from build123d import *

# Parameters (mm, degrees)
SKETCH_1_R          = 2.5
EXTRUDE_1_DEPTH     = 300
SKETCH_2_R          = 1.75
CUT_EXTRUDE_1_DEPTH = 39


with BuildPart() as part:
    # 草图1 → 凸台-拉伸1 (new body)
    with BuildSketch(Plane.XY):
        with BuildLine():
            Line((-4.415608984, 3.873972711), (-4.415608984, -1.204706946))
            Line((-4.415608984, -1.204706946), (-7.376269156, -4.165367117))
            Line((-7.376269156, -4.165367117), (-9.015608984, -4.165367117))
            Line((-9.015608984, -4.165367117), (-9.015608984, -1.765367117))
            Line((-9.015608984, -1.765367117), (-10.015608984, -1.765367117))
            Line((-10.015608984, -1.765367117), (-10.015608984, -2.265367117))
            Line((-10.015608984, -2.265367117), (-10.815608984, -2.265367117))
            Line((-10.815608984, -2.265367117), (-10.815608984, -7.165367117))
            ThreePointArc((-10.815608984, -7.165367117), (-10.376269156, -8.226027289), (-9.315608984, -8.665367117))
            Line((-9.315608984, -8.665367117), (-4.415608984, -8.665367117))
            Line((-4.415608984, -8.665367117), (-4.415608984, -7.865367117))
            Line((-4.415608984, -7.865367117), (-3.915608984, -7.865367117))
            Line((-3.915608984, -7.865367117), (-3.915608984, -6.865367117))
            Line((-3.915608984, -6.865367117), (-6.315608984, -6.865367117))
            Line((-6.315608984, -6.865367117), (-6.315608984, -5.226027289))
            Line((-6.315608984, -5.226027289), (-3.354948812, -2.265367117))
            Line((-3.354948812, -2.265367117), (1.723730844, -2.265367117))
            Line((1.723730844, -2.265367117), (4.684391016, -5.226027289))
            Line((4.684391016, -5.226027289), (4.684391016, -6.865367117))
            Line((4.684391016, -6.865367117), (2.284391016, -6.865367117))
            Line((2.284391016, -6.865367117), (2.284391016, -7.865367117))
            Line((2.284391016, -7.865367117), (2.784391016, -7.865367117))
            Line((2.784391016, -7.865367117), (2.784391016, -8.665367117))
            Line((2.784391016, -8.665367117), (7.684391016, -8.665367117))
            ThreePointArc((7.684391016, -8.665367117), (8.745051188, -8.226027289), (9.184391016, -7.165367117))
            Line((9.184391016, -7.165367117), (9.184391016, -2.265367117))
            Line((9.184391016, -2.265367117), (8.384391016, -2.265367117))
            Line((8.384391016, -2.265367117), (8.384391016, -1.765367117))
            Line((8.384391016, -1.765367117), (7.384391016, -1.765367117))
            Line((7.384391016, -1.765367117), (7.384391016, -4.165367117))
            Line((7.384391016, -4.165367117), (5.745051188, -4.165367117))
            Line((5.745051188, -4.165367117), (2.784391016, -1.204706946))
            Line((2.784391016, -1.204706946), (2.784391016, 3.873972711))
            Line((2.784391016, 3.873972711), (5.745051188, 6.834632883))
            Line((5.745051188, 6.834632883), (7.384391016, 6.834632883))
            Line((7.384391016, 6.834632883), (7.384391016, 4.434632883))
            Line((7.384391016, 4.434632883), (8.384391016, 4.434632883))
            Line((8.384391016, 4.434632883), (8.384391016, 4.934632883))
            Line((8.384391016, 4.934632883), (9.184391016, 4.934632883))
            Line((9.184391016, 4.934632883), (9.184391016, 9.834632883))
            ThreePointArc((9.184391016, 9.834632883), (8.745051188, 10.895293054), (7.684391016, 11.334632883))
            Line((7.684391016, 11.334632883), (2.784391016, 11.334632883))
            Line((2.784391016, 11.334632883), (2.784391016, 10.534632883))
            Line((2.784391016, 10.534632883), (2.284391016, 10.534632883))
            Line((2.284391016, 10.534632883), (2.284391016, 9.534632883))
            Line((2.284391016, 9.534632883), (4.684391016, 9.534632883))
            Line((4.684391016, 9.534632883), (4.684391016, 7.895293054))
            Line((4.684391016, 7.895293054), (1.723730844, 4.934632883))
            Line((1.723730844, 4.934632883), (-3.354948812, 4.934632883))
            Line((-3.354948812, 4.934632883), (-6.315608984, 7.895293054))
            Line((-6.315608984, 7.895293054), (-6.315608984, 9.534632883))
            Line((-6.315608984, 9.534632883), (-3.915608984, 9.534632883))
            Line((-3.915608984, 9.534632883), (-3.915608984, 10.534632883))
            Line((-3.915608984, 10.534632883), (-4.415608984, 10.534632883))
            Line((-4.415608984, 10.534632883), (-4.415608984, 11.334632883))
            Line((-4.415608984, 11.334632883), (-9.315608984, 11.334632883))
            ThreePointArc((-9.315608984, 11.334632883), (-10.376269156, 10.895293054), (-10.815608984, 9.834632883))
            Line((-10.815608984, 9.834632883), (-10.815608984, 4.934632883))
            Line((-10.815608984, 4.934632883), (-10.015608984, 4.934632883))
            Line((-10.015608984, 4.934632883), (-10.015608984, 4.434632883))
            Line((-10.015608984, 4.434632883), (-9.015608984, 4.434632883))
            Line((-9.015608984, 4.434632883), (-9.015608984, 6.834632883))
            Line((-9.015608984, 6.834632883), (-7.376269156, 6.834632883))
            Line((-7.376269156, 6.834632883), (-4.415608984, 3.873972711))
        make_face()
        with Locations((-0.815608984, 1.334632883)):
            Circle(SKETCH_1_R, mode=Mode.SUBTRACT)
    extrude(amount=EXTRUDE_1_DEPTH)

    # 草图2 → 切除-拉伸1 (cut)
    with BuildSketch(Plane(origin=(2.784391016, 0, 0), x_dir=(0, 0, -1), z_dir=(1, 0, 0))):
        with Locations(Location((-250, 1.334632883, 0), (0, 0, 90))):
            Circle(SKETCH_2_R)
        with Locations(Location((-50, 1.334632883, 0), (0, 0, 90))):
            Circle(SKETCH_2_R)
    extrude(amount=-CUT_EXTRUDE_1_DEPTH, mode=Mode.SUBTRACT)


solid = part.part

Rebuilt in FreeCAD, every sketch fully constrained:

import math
import FreeCAD as App
import Part
import Sketcher
from FreeCAD import Vector
Q = App.Units.Quantity

doc = App.newDocument("Part")
body = doc.addObject("PartDesign::Body", "Body")

# Sketch on XY plane
sketch1 = body.newObject("Sketcher::SketchObject", "Sketch")
sketch1.AttachmentSupport = (doc.getObject("XY_Plane"), [""])
sketch1.MapMode = "FlatFace"
sketch1.addGeometry([
    Part.LineSegment(Vector(-4.42, 3.87, 0), Vector(-4.42, -1.2, 0)),  # 0
    Part.LineSegment(Vector(-4.42, -1.2, 0), Vector(-7.38, -4.17, 0)),  # 1
    Part.LineSegment(Vector(-7.38, -4.17, 0), Vector(-9.02, -4.17, 0)),  # 2
    Part.LineSegment(Vector(-9.02, -4.17, 0), Vector(-9.02, -1.77, 0)),  # 3
    Part.LineSegment(Vector(-9.02, -1.77, 0), Vector(-10.02, -1.77, 0)),  # 4
    Part.LineSegment(Vector(-10.02, -1.77, 0), Vector(-10.02, -2.27, 0)),  # 5
    Part.LineSegment(Vector(-10.02, -2.27, 0), Vector(-10.82, -2.27, 0)),  # 6
    Part.LineSegment(Vector(-10.82, -2.27, 0), Vector(-10.82, -7.17, 0)),  # 7
    Part.ArcOfCircle(Part.Circle(Vector(-9.32, -7.17, 0), Vector(0, 0, 1), 1.5), math.radians(180), math.radians(270)),  # 8
    Part.LineSegment(Vector(-9.32, -8.67, 0), Vector(-4.42, -8.67, 0)),  # 9
    Part.LineSegment(Vector(-4.42, -8.67, 0), Vector(-4.42, -7.87, 0)),  # 10
    Part.LineSegment(Vector(-4.42, -7.87, 0), Vector(-3.92, -7.87, 0)),  # 11
    Part.LineSegment(Vector(-3.92, -7.87, 0), Vector(-3.92, -6.87, 0)),  # 12
    Part.LineSegment(Vector(-3.92, -6.87, 0), Vector(-6.32, -6.87, 0)),  # 13
    Part.LineSegment(Vector(-6.32, -6.87, 0), Vector(-6.32, -5.23, 0)),  # 14
    Part.LineSegment(Vector(-6.32, -5.23, 0), Vector(-3.35, -2.27, 0)),  # 15
    Part.LineSegment(Vector(-3.35, -2.27, 0), Vector(1.72, -2.27, 0)),  # 16
    Part.LineSegment(Vector(1.72, -2.27, 0), Vector(4.68, -5.23, 0)),  # 17
    Part.LineSegment(Vector(4.68, -5.23, 0), Vector(4.68, -6.87, 0)),  # 18
    Part.LineSegment(Vector(4.68, -6.87, 0), Vector(2.28, -6.87, 0)),  # 19
    Part.LineSegment(Vector(2.28, -6.87, 0), Vector(2.28, -7.87, 0)),  # 20
    Part.LineSegment(Vector(2.28, -7.87, 0), Vector(2.78, -7.87, 0)),  # 21
    Part.LineSegment(Vector(2.78, -7.87, 0), Vector(2.78, -8.67, 0)),  # 22
    Part.LineSegment(Vector(2.78, -8.67, 0), Vector(7.68, -8.67, 0)),  # 23
    Part.ArcOfCircle(Part.Circle(Vector(7.68, -7.17, 0), Vector(0, 0, 1), 1.5), math.radians(-90), math.radians(0)),  # 24
    Part.LineSegment(Vector(9.18, -7.17, 0), Vector(9.18, -2.27, 0)),  # 25
    Part.LineSegment(Vector(9.18, -2.27, 0), Vector(8.38, -2.27, 0)),  # 26
    Part.LineSegment(Vector(8.38, -2.27, 0), Vector(8.38, -1.77, 0)),  # 27
    Part.LineSegment(Vector(8.38, -1.77, 0), Vector(7.38, -1.77, 0)),  # 28
    Part.LineSegment(Vector(7.38, -1.77, 0), Vector(7.38, -4.17, 0)),  # 29
    Part.LineSegment(Vector(7.38, -4.17, 0), Vector(5.75, -4.17, 0)),  # 30
    Part.LineSegment(Vector(5.75, -4.17, 0), Vector(2.78, -1.2, 0)),  # 31
    Part.LineSegment(Vector(2.78, -1.2, 0), Vector(2.78, 3.87, 0)),  # 32
    Part.LineSegment(Vector(2.78, 3.87, 0), Vector(5.75, 6.83, 0)),  # 33
    Part.LineSegment(Vector(5.75, 6.83, 0), Vector(7.38, 6.83, 0)),  # 34
    Part.LineSegment(Vector(7.38, 6.83, 0), Vector(7.38, 4.43, 0)),  # 35
    Part.LineSegment(Vector(7.38, 4.43, 0), Vector(8.38, 4.43, 0)),  # 36
    Part.LineSegment(Vector(8.38, 4.43, 0), Vector(8.38, 4.93, 0)),  # 37
    Part.LineSegment(Vector(8.38, 4.93, 0), Vector(9.18, 4.93, 0)),  # 38
    Part.LineSegment(Vector(9.18, 4.93, 0), Vector(9.18, 9.83, 0)),  # 39
    Part.ArcOfCircle(Part.Circle(Vector(7.68, 9.83, 0), Vector(0, 0, 1), 1.5), math.radians(0), math.radians(90)),  # 40
    Part.LineSegment(Vector(7.68, 11.33, 0), Vector(2.78, 11.33, 0)),  # 41
    Part.LineSegment(Vector(2.78, 11.33, 0), Vector(2.78, 10.53, 0)),  # 42
    Part.LineSegment(Vector(2.78, 10.53, 0), Vector(2.28, 10.53, 0)),  # 43
    Part.LineSegment(Vector(2.28, 10.53, 0), Vector(2.28, 9.53, 0)),  # 44
    Part.LineSegment(Vector(2.28, 9.53, 0), Vector(4.68, 9.53, 0)),  # 45
    Part.LineSegment(Vector(4.68, 9.53, 0), Vector(4.68, 7.9, 0)),  # 46
    Part.LineSegment(Vector(4.68, 7.9, 0), Vector(1.72, 4.93, 0)),  # 47
    Part.LineSegment(Vector(1.72, 4.93, 0), Vector(-3.35, 4.93, 0)),  # 48
    Part.LineSegment(Vector(-3.35, 4.93, 0), Vector(-6.32, 7.9, 0)),  # 49
    Part.LineSegment(Vector(-6.32, 7.9, 0), Vector(-6.32, 9.53, 0)),  # 50
    Part.LineSegment(Vector(-6.32, 9.53, 0), Vector(-3.92, 9.53, 0)),  # 51
    Part.LineSegment(Vector(-3.92, 9.53, 0), Vector(-3.92, 10.53, 0)),  # 52
    Part.LineSegment(Vector(-3.92, 10.53, 0), Vector(-4.42, 10.53, 0)),  # 53
    Part.LineSegment(Vector(-4.42, 10.53, 0), Vector(-4.42, 11.33, 0)),  # 54
    Part.LineSegment(Vector(-4.42, 11.33, 0), Vector(-9.32, 11.33, 0)),  # 55
    Part.ArcOfCircle(Part.Circle(Vector(-9.32, 9.83, 0), Vector(0, 0, 1), 1.5), math.radians(90), math.radians(180)),  # 56
    Part.LineSegment(Vector(-10.82, 9.83, 0), Vector(-10.82, 4.93, 0)),  # 57
    Part.LineSegment(Vector(-10.82, 4.93, 0), Vector(-10.02, 4.93, 0)),  # 58
    Part.LineSegment(Vector(-10.02, 4.93, 0), Vector(-10.02, 4.43, 0)),  # 59
    Part.LineSegment(Vector(-10.02, 4.43, 0), Vector(-9.02, 4.43, 0)),  # 60
    Part.LineSegment(Vector(-9.02, 4.43, 0), Vector(-9.02, 6.83, 0)),  # 61
    Part.LineSegment(Vector(-9.02, 6.83, 0), Vector(-7.38, 6.83, 0)),  # 62
    Part.LineSegment(Vector(-7.38, 6.83, 0), Vector(-4.42, 3.87, 0)),  # 63
    Part.Circle(Vector(-0.82, 1.33, 0), Vector(0, 0, 1), 2.5),  # 64
], False)
sketch1.addConstraint([
    Sketcher.Constraint("Coincident", 0, 2, 1, 1),
    Sketcher.Constraint("Coincident", 1, 2, 2, 1),
    Sketcher.Constraint("Coincident", 2, 2, 3, 1),
    Sketcher.Constraint("Coincident", 3, 2, 4, 1),
    Sketcher.Constraint("Coincident", 4, 2, 5, 1),
    Sketcher.Constraint("Coincident", 5, 2, 6, 1),
    Sketcher.Constraint("Coincident", 6, 2, 7, 1),
    Sketcher.Constraint("Tangent", 7, 2, 8, 1),
    Sketcher.Constraint("Tangent", 8, 2, 9, 1),
    Sketcher.Constraint("Coincident", 9, 2, 10, 1),
    Sketcher.Constraint("Coincident", 10, 2, 11, 1),
    Sketcher.Constraint("Coincident", 11, 2, 12, 1),
    Sketcher.Constraint("Coincident", 12, 2, 13, 1),
    Sketcher.Constraint("Coincident", 13, 2, 14, 1),
    Sketcher.Constraint("Coincident", 14, 2, 15, 1),
    Sketcher.Constraint("Coincident", 15, 2, 16, 1),
    Sketcher.Constraint("Coincident", 16, 2, 17, 1),
    Sketcher.Constraint("Coincident", 17, 2, 18, 1),
    Sketcher.Constraint("Coincident", 18, 2, 19, 1),
    Sketcher.Constraint("Coincident", 19, 2, 20, 1),
    Sketcher.Constraint("Coincident", 20, 2, 21, 1),
    Sketcher.Constraint("Coincident", 21, 2, 22, 1),
    Sketcher.Constraint("Coincident", 22, 2, 23, 1),
    Sketcher.Constraint("Tangent", 23, 2, 24, 1),
    Sketcher.Constraint("Tangent", 24, 2, 25, 1),
    Sketcher.Constraint("Coincident", 25, 2, 26, 1),
    Sketcher.Constraint("Coincident", 26, 2, 27, 1),
    Sketcher.Constraint("Coincident", 27, 2, 28, 1),
    Sketcher.Constraint("Coincident", 28, 2, 29, 1),
    Sketcher.Constraint("Coincident", 29, 2, 30, 1),
    Sketcher.Constraint("Coincident", 30, 2, 31, 1),
    Sketcher.Constraint("Coincident", 31, 2, 32, 1),
    Sketcher.Constraint("Coincident", 32, 2, 33, 1),
    Sketcher.Constraint("Coincident", 33, 2, 34, 1),
    Sketcher.Constraint("Coincident", 34, 2, 35, 1),
    Sketcher.Constraint("Coincident", 35, 2, 36, 1),
    Sketcher.Constraint("Coincident", 36, 2, 37, 1),
    Sketcher.Constraint("Coincident", 37, 2, 38, 1),
    Sketcher.Constraint("Coincident", 38, 2, 39, 1),
    Sketcher.Constraint("Tangent", 39, 2, 40, 1),
    Sketcher.Constraint("Tangent", 40, 2, 41, 1),
    Sketcher.Constraint("Coincident", 41, 2, 42, 1),
    Sketcher.Constraint("Coincident", 42, 2, 43, 1),
    Sketcher.Constraint("Coincident", 43, 2, 44, 1),
    Sketcher.Constraint("Coincident", 44, 2, 45, 1),
    Sketcher.Constraint("Coincident", 45, 2, 46, 1),
    Sketcher.Constraint("Coincident", 46, 2, 47, 1),
    Sketcher.Constraint("Coincident", 47, 2, 48, 1),
    Sketcher.Constraint("Coincident", 48, 2, 49, 1),
    Sketcher.Constraint("Coincident", 49, 2, 50, 1),
    Sketcher.Constraint("Coincident", 50, 2, 51, 1),
    Sketcher.Constraint("Coincident", 51, 2, 52, 1),
    Sketcher.Constraint("Coincident", 52, 2, 53, 1),
    Sketcher.Constraint("Coincident", 53, 2, 54, 1),
    Sketcher.Constraint("Coincident", 54, 2, 55, 1),
    Sketcher.Constraint("Tangent", 55, 2, 56, 1),
    Sketcher.Constraint("Tangent", 56, 2, 57, 1),
    Sketcher.Constraint("Coincident", 57, 2, 58, 1),
    Sketcher.Constraint("Coincident", 58, 2, 59, 1),
    Sketcher.Constraint("Coincident", 59, 2, 60, 1),
    Sketcher.Constraint("Coincident", 60, 2, 61, 1),
    Sketcher.Constraint("Coincident", 61, 2, 62, 1),
    Sketcher.Constraint("Coincident", 62, 2, 63, 1),
    Sketcher.Constraint("Coincident", 63, 2, 0, 1),
    Sketcher.Constraint("Vertical", 0),
    Sketcher.Constraint("Horizontal", 2),
    Sketcher.Constraint("Vertical", 3),
    Sketcher.Constraint("Horizontal", 4),
    Sketcher.Constraint("Vertical", 5),
    Sketcher.Constraint("Horizontal", 6),
    Sketcher.Constraint("Vertical", 7),
    Sketcher.Constraint("Horizontal", 9),
    Sketcher.Constraint("Vertical", 10),
    Sketcher.Constraint("Horizontal", 11),
    Sketcher.Constraint("Vertical", 12),
    Sketcher.Constraint("Horizontal", 13),
    Sketcher.Constraint("Vertical", 14),
    Sketcher.Constraint("Horizontal", 16),
    Sketcher.Constraint("Vertical", 18),
    Sketcher.Constraint("Horizontal", 19),
    Sketcher.Constraint("Vertical", 20),
    Sketcher.Constraint("Horizontal", 21),
    Sketcher.Constraint("Vertical", 22),
    Sketcher.Constraint("Horizontal", 23),
    Sketcher.Constraint("Vertical", 25),
    Sketcher.Constraint("Horizontal", 26),
    Sketcher.Constraint("Vertical", 27),
    Sketcher.Constraint("Horizontal", 28),
    Sketcher.Constraint("Vertical", 29),
    Sketcher.Constraint("Horizontal", 30),
    Sketcher.Constraint("Vertical", 32),
    Sketcher.Constraint("Horizontal", 34),
    Sketcher.Constraint("Vertical", 35),
    Sketcher.Constraint("Horizontal", 36),
    Sketcher.Constraint("Vertical", 37),
    Sketcher.Constraint("Horizontal", 38),
    Sketcher.Constraint("Vertical", 39),
    Sketcher.Constraint("Horizontal", 41),
    Sketcher.Constraint("Vertical", 42),
    Sketcher.Constraint("Horizontal", 43),
    Sketcher.Constraint("Vertical", 44),
    Sketcher.Constraint("Horizontal", 45),
    Sketcher.Constraint("Vertical", 46),
    Sketcher.Constraint("Horizontal", 48),
    Sketcher.Constraint("Vertical", 50),
    Sketcher.Constraint("Horizontal", 51),
    Sketcher.Constraint("Vertical", 52),
    Sketcher.Constraint("Horizontal", 53),
    Sketcher.Constraint("Vertical", 54),
    Sketcher.Constraint("Horizontal", 55),
    Sketcher.Constraint("Vertical", 57),
    Sketcher.Constraint("Horizontal", 58),
    Sketcher.Constraint("Vertical", 59),
    Sketcher.Constraint("Horizontal", 60),
    Sketcher.Constraint("Vertical", 61),
    Sketcher.Constraint("Horizontal", 62),
    Sketcher.Constraint("Equal", 8, 24),
    Sketcher.Constraint("Equal", 24, 40),
    Sketcher.Constraint("Equal", 40, 56),
    Sketcher.Constraint("Parallel", 1, 15),
    Sketcher.Constraint("Perpendicular", 15, 17),
    Sketcher.Constraint("Parallel", 17, 31),
    Sketcher.Constraint("Perpendicular", 31, 33),
    Sketcher.Constraint("Parallel", 33, 47),
    Sketcher.Constraint("Perpendicular", 47, 49),
    Sketcher.Constraint("Parallel", 49, 63),
    Sketcher.Constraint("Horizontal", 8, 3, 24, 3),
    Sketcher.Constraint("Horizontal", 40, 3, 56, 3),
    Sketcher.Constraint("Horizontal", 6, 2, 15, 2),
    Sketcher.Constraint("Horizontal", 14, 2, 17, 2),
    Sketcher.Constraint("Horizontal", 13, 2, 18, 2),
    Sketcher.Constraint("Horizontal", 11, 2, 20, 2),
    Sketcher.Constraint("Horizontal", 16, 2, 25, 2),
    Sketcher.Constraint("Horizontal", 4, 2, 27, 2),
    Sketcher.Constraint("Horizontal", 2, 2, 29, 2),
    Sketcher.Constraint("Horizontal", 0, 2, 31, 2),
    Sketcher.Constraint("Horizontal", 38, 2, 47, 2),
    Sketcher.Constraint("Horizontal", 46, 2, 49, 2),
    Sketcher.Constraint("Horizontal", 45, 2, 50, 2),
    Sketcher.Constraint("Horizontal", 43, 2, 52, 2),
    Sketcher.Constraint("Horizontal", 48, 2, 57, 2),
    Sketcher.Constraint("Horizontal", 36, 2, 59, 2),
    Sketcher.Constraint("Horizontal", 34, 2, 61, 2),
    Sketcher.Constraint("Horizontal", 32, 2, 63, 2),
    Sketcher.Constraint("Vertical", 24, 3, 40, 3),
    Sketcher.Constraint("Vertical", 8, 3, 56, 3),
    Sketcher.Constraint("Vertical", 0, 2, 9, 2),
    Sketcher.Constraint("Vertical", 22, 2, 31, 2),
    Sketcher.Constraint("Vertical", 30, 2, 33, 2),
    Sketcher.Constraint("Vertical", 29, 2, 34, 2),
    Sketcher.Constraint("Vertical", 27, 2, 36, 2),
    Sketcher.Constraint("Vertical", 32, 2, 41, 2),
    Sketcher.Constraint("Vertical", 20, 2, 43, 2),
    Sketcher.Constraint("Vertical", 18, 2, 45, 2),
    Sketcher.Constraint("Vertical", 16, 2, 47, 2),
    Sketcher.Constraint("Vertical", 15, 2, 48, 2),
    Sketcher.Constraint("Vertical", 14, 2, 49, 2),
    Sketcher.Constraint("Vertical", 12, 2, 51, 2),
    Sketcher.Constraint("Vertical", 10, 2, 53, 2),
    Sketcher.Constraint("Vertical", 5, 2, 58, 2),
    Sketcher.Constraint("Vertical", 3, 2, 60, 2),
    Sketcher.Constraint("Equal", 13, 19),
    Sketcher.Constraint("Equal", 11, 21),
    Sketcher.Constraint("Equal", 9, 23),
    Sketcher.Constraint("Equal", 6, 26),
    Sketcher.Constraint("Equal", 4, 28),
    Sketcher.Constraint("Equal", 48, 0),
    Sketcher.Constraint("Equal", 51, 3),
    Sketcher.Constraint("Equal", 53, 5),
    Sketcher.Constraint("Equal", 55, 7),
    Sketcher.Constraint("Equal", 58, 10),
    Sketcher.Constraint("Equal", 60, 12),
    Sketcher.Constraint("Equal", 62, 14),
    Sketcher.Constraint("Equal", 29, 35),
    Sketcher.Constraint("Equal", 27, 37),
    Sketcher.Constraint("Equal", 25, 39),
    Sketcher.Constraint("Equal", 22, 42),
    Sketcher.Constraint("Equal", 20, 44),
    Sketcher.Constraint("Diameter", 64, Q("5 mm")),
    Sketcher.Constraint("Radius", 8, Q("1.5 mm")),
    Sketcher.Constraint("DistanceX", 4, 2, 4, 1, Q("1 mm")),
    Sketcher.Constraint("DistanceX", 6, 2, 6, 1, Q("0.8 mm")),
    Sketcher.Constraint("DistanceX", 9, 1, 9, 2, Q("4.9 mm")),
    Sketcher.Constraint("DistanceX", 11, 1, 11, 2, Q("0.5 mm")),
    Sketcher.Constraint("DistanceX", 13, 2, 13, 1, Q("2.4 mm")),
    Sketcher.Constraint("DistanceX", 2, 2, 2, 1, Q("1.63934 mm")),
    Sketcher.Constraint("DistanceX", 16, 1, 16, 2, Q("5.07868 mm")),
    Sketcher.Constraint("DistanceX", 8, 3, -1, 1, Q("9.315609 mm")),
    Sketcher.Constraint("DistanceX", 64, 3, -1, 1, Q("0.815609 mm")),
    Sketcher.Constraint("DistanceY", 8, 3, -1, 1, Q("7.165367 mm")),
    Sketcher.Constraint("DistanceY", -1, 1, 64, 3, Q("1.334633 mm")),
])
pad1 = body.newObject("PartDesign::Pad", "Pad")
pad1.Profile = sketch1
pad1.Length = 300

# Sketch on YZ plane
sketch2 = body.newObject("Sketcher::SketchObject", "Sketch001")
sketch2.AttachmentSupport = (doc.getObject("YZ_Plane"), [""])
sketch2.MapMode = "FlatFace"
sketch2.AttachmentOffset = App.Placement(Vector(0, 0, 2.784391), App.Rotation())
sketch2.addGeometry([
    Part.Circle(Vector(1.3, 250, 0), Vector(0, 0, 1), 1.8),
    Part.Circle(Vector(1.3, 50, 0), Vector(0, 0, 1), 1.8),
], False)
sketch2.addConstraint([
    Sketcher.Constraint("Equal", 0, 1),
    Sketcher.Constraint("Vertical", 0, 3, 1, 3),
    Sketcher.Constraint("Diameter", 0, Q("3.5 mm")),
    Sketcher.Constraint("DistanceY", -1, 1, 0, 3, Q("250 mm")),
    Sketcher.Constraint("DistanceY", -1, 1, 1, 3, Q("50 mm")),
    Sketcher.Constraint("DistanceX", -1, 1, 0, 3, Q("1.334633 mm")),
])
pocket1 = body.newObject("PartDesign::Pocket", "Pocket")
pocket1.Profile = sketch2
pocket1.Length = 39

doc.recompute()
